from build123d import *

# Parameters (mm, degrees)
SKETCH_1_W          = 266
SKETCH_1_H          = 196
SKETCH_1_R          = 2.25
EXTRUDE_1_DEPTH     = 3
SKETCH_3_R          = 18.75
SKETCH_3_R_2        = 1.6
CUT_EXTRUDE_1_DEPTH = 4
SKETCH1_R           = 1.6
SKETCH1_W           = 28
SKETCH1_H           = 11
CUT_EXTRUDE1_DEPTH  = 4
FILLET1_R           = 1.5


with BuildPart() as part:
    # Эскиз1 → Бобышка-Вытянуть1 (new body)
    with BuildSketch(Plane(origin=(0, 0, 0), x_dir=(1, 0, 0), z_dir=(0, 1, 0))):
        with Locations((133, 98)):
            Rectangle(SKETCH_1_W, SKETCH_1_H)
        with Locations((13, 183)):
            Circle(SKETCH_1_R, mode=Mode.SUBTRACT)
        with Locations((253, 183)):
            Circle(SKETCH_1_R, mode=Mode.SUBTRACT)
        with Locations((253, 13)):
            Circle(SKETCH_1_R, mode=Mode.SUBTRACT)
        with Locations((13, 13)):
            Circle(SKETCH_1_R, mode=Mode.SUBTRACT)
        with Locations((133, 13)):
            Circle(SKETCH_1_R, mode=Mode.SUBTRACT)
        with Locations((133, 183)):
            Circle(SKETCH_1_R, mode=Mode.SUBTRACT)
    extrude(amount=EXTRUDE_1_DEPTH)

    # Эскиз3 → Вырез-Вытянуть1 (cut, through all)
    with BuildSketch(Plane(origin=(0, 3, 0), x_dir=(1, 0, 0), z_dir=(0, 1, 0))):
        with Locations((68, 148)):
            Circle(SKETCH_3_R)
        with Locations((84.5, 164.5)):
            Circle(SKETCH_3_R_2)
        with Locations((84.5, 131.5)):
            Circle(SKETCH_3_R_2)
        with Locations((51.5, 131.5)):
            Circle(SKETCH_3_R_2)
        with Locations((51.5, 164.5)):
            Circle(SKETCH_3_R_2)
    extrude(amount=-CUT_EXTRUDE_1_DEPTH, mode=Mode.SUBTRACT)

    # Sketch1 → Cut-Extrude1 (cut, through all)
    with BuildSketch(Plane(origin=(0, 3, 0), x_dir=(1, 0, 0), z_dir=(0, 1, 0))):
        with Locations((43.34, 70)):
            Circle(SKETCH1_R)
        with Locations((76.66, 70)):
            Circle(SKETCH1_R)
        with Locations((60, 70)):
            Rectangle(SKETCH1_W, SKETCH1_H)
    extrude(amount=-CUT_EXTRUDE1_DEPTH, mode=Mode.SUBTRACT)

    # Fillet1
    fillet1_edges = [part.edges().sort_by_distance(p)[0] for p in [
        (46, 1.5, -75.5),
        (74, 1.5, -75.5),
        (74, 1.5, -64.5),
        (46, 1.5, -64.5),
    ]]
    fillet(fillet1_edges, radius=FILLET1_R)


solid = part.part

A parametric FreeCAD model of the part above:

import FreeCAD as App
import Part
import Sketcher


def edges_at(feature, points):
    """Names of the edges that pass closest to the given points."""
    edges = feature.Shape.Edges
    near = lambda p: min(range(len(edges)), key=lambda i: edges[i].distToShape(Part.Vertex(*p))[0])
    return sorted({f"Edge{near(p) + 1}" for p in points})


def add_polygon(sketch, points):
    """Adds a closed chain of lines whose ends are joined by coincident constraints."""
    first, n = sketch.GeometryCount, len(points)
    for a, b in zip(points, points[1:] + points[:1]):
        sketch.addGeometry(Part.LineSegment(App.Vector(*a, 0), App.Vector(*b, 0)), False)
    for i in range(n):
        sketch.addConstraint(Sketcher.Constraint("Coincident", first + i, 2, first + (i + 1) % n, 1))

doc = App.newDocument("Part")
params = doc.addObject("Spreadsheet::Sheet", "Params")
for row, (alias, value) in enumerate([
    ("sketch1_diameter", "4.5 mm"),
    ("sketch1_width", "266 mm"),
    ("sketch1_height", "196 mm"),
    ("pad1_length", "3 mm"),
    ("sketch2_diameter", "37.5 mm"),
    ("sketch2_diameter2", "3.2 mm"),
    ("sketch3_diameter", "3.2 mm"),
    ("sketch3_width", "28 mm"),
    ("sketch3_height", "11 mm"),
    ("fillet_radius", "1.5 mm"),
], start=1):
    params.set(f"A{row}", alias)
    params.set(f"B{row}", "=" + value)
    params.setAlias(f"B{row}", alias)

body = doc.addObject("PartDesign::Body", "Body")

# Sketch on XZ plane
sketch1 = body.newObject("Sketcher::SketchObject", "Sketch")
sketch1.AttachmentSupport = (doc.getObject("XZ_Plane"), [""])
sketch1.MapMode = "FlatFace"
add_polygon(sketch1, [(0, -196), (0, 0), (266, 0), (266, -196)])  # lines 0-3
sketch1.addGeometry(Part.Circle(App.Vector(13, -13, 0), App.Vector(0, 0, 1), 2.2), False)  # 4
sketch1.addGeometry(Part.Circle(App.Vector(133, -13, 0), App.Vector(0, 0, 1), 2.2), False)  # 5
sketch1.addGeometry(Part.Circle(App.Vector(253, -13, 0), App.Vector(0, 0, 1), 2.2), False)  # 6
sketch1.addGeometry(Part.Circle(App.Vector(13, -183, 0), App.Vector(0, 0, 1), 2.2), False)  # 7
sketch1.addGeometry(Part.Circle(App.Vector(133, -183, 0), App.Vector(0, 0, 1), 2.2), False)  # 8
sketch1.addGeometry(Part.Circle(App.Vector(253, -183, 0), App.Vector(0, 0, 1), 2.2), False)  # 9
sketch1.addConstraint([
    Sketcher.Constraint("Vertical", 0),
    Sketcher.Constraint("Horizontal", 1),
    Sketcher.Constraint("Vertical", 2),
    Sketcher.Constraint("Horizontal", 3),
    Sketcher.Constraint("Coincident", 0, 2, -1, 1),
    Sketcher.Constraint("Equal", 4, 5),
    Sketcher.Constraint("Equal", 5, 6),
    Sketcher.Constraint("Equal", 6, 7),
    Sketcher.Constraint("Equal", 7, 8),
    Sketcher.Constraint("Equal", 8, 9),
    Sketcher.Constraint("Horizontal", 4, 3, 5, 3),
    Sketcher.Constraint("Horizontal", 5, 3, 6, 3),
    Sketcher.Constraint("Horizontal", 7, 3, 8, 3),
    Sketcher.Constraint("Horizontal", 8, 3, 9, 3),
    Sketcher.Constraint("Vertical", 4, 3, 7, 3),
    Sketcher.Constraint("Vertical", 5, 3, 8, 3),
    Sketcher.Constraint("Vertical", 6, 3, 9, 3),
    Sketcher.Constraint("Diameter", 4, 4.5),
    Sketcher.Constraint("DistanceX", 1, 1, 1, 2, 266.0),
    Sketcher.Constraint("DistanceY", 0, 1, 0, 2, 196.0),
    Sketcher.Constraint("DistanceX", -1, 1, 4, 3, 13.0),
    Sketcher.Constraint("DistanceY", 4, 3, -1, 1, 13.0),
    Sketcher.Constraint("DistanceX", -1, 1, 5, 3, 133.0),
    Sketcher.Constraint("DistanceX", -1, 1, 6, 3, 253.0),
    Sketcher.Constraint("DistanceY", 7, 3, -1, 1, 183.0),
])
sketch1.setExpression("Constraints[21]", "Params.sketch1_diameter")
sketch1.setExpression("Constraints[22]", "Params.sketch1_width")
sketch1.setExpression("Constraints[23]", "Params.sketch1_height")
pad1 = body.newObject("PartDesign::Pad", "Pad")
pad1.Profile = sketch1
pad1.setExpression("Length", "Params.pad1_length")
pad1.Reversed = True

# Sketch on XZ plane
sketch2 = body.newObject("Sketcher::SketchObject", "Sketch001")
sketch2.AttachmentSupport = (doc.getObject("XZ_Plane"), [""])
sketch2.MapMode = "FlatFace"
sketch2.AttachmentOffset = App.Placement(App.Vector(0, 0, -3), App.Rotation())
sketch2.addGeometry([
    Part.Circle(App.Vector(68, -148, 0), App.Vector(0, 0, 1), 18.8),  # 0
    Part.Circle(App.Vector(84.5, -164.5, 0), App.Vector(0, 0, 1), 1.6),  # 1
    Part.Circle(App.Vector(84.5, -131.5, 0), App.Vector(0, 0, 1), 1.6),  # 2
    Part.Circle(App.Vector(51.5, -131.5, 0), App.Vector(0, 0, 1), 1.6),  # 3
    Part.Circle(App.Vector(51.5, -164.5, 0), App.Vector(0, 0, 1), 1.6),  # 4
], False)
sketch2.addConstraint([
    Sketcher.Constraint("Equal", 1, 2),
    Sketcher.Constraint("Equal", 2, 3),
    Sketcher.Constraint("Equal", 3, 4),
    Sketcher.Constraint("Horizontal", 2, 3, 3, 3),
    Sketcher.Constraint("Horizontal", 1, 3, 4, 3),
    Sketcher.Constraint("Vertical", 1, 3, 2, 3),
    Sketcher.Constraint("Vertical", 3, 3, 4, 3),
    Sketcher.Constraint("Diameter", 0, 37.5),
    Sketcher.Constraint("Diameter", 1, 3.2),
    Sketcher.Constraint("DistanceX", -1, 1, 0, 3, 68.0),
    Sketcher.Constraint("DistanceY", 0, 3, -1, 1, 148.0),
    Sketcher.Constraint("DistanceY", 1, 3, 2, 3, 33.0),
    Sketcher.Constraint("DistanceX", 3, 3, 2, 3, 33.0),
    Sketcher.Constraint("DistanceX", -1, 1, 1, 3, 84.5),
    Sketcher.Constraint("DistanceY", 1, 3, -1, 1, 164.5),
])
sketch2.setExpression("Constraints[7]", "Params.sketch2_diameter")
sketch2.setExpression("Constraints[8]", "Params.sketch2_diameter2")
pocket1 = body.newObject("PartDesign::Pocket", "Pocket")
pocket1.Profile = sketch2
pocket1.Type = "ThroughAll"
pocket1.Reversed = True

# Sketch on XZ plane
sketch3 = body.newObject("Sketcher::SketchObject", "Sketch002")
sketch3.AttachmentSupport = (doc.getObject("XZ_Plane"), [""])
sketch3.MapMode = "FlatFace"
sketch3.AttachmentOffset = App.Placement(App.Vector(0, 0, -3), App.Rotation())
sketch3.addGeometry(Part.Circle(App.Vector(43.3, -70, 0), App.Vector(0, 0, 1), 1.6), False)  # 0
sketch3.addGeometry(Part.Circle(App.Vector(76.7, -70, 0), App.Vector(0, 0, 1), 1.6), False)  # 1
add_polygon(sketch3, [(46, -75.5), (46, -64.5), (74, -64.5), (74, -75.5)])  # lines 2-5
sketch3.addConstraint([
    Sketcher.Constraint("Vertical", 2),
    Sketcher.Constraint("Horizontal", 3),
    Sketcher.Constraint("Vertical", 4),
    Sketcher.Constraint("Horizontal", 5),
    Sketcher.Constraint("Equal", 0, 1),
    Sketcher.Constraint("Horizontal", 0, 3, 1, 3),
    Sketcher.Constraint("Diameter", 0, 3.2),
    Sketcher.Constraint("DistanceX", 3, 1, 3, 2, 28.0),
    Sketcher.Constraint("DistanceY", 2, 1, 2, 2, 11.0),
    Sketcher.Constraint("DistanceY", 0, 3, -1, 1, 70.0),
    Sketcher.Constraint("DistanceX", -1, 1, 2, 2, 46.0),
    Sketcher.Constraint("DistanceY", 2, 2, -1, 1, 64.5),
    Sketcher.Constraint("DistanceX", -1, 1, 0, 3, 43.34),
    Sketcher.Constraint("DistanceX", -1, 1, 1, 3, 76.66),
])
sketch3.setExpression("Constraints[10]", "Params.sketch3_diameter")
sketch3.setExpression("Constraints[11]", "Params.sketch3_width")
sketch3.setExpression("Constraints[12]", "Params.sketch3_height")
pocket2 = body.newObject("PartDesign::Pocket", "Pocket001")
pocket2.Profile = sketch3
pocket2.Type = "ThroughAll"
pocket2.Reversed = True
doc.recompute()

fillet = body.newObject("PartDesign::Fillet", "Fillet")
fillet.Base = (pocket2, edges_at(pocket2, [
    (46, 1.5, -75.5),
    (74, 1.5, -75.5),
    (74, 1.5, -64.5),
    (46, 1.5, -64.5),
]))
fillet.setExpression("Radius", "Params.fillet_radius")

doc.recompute()
